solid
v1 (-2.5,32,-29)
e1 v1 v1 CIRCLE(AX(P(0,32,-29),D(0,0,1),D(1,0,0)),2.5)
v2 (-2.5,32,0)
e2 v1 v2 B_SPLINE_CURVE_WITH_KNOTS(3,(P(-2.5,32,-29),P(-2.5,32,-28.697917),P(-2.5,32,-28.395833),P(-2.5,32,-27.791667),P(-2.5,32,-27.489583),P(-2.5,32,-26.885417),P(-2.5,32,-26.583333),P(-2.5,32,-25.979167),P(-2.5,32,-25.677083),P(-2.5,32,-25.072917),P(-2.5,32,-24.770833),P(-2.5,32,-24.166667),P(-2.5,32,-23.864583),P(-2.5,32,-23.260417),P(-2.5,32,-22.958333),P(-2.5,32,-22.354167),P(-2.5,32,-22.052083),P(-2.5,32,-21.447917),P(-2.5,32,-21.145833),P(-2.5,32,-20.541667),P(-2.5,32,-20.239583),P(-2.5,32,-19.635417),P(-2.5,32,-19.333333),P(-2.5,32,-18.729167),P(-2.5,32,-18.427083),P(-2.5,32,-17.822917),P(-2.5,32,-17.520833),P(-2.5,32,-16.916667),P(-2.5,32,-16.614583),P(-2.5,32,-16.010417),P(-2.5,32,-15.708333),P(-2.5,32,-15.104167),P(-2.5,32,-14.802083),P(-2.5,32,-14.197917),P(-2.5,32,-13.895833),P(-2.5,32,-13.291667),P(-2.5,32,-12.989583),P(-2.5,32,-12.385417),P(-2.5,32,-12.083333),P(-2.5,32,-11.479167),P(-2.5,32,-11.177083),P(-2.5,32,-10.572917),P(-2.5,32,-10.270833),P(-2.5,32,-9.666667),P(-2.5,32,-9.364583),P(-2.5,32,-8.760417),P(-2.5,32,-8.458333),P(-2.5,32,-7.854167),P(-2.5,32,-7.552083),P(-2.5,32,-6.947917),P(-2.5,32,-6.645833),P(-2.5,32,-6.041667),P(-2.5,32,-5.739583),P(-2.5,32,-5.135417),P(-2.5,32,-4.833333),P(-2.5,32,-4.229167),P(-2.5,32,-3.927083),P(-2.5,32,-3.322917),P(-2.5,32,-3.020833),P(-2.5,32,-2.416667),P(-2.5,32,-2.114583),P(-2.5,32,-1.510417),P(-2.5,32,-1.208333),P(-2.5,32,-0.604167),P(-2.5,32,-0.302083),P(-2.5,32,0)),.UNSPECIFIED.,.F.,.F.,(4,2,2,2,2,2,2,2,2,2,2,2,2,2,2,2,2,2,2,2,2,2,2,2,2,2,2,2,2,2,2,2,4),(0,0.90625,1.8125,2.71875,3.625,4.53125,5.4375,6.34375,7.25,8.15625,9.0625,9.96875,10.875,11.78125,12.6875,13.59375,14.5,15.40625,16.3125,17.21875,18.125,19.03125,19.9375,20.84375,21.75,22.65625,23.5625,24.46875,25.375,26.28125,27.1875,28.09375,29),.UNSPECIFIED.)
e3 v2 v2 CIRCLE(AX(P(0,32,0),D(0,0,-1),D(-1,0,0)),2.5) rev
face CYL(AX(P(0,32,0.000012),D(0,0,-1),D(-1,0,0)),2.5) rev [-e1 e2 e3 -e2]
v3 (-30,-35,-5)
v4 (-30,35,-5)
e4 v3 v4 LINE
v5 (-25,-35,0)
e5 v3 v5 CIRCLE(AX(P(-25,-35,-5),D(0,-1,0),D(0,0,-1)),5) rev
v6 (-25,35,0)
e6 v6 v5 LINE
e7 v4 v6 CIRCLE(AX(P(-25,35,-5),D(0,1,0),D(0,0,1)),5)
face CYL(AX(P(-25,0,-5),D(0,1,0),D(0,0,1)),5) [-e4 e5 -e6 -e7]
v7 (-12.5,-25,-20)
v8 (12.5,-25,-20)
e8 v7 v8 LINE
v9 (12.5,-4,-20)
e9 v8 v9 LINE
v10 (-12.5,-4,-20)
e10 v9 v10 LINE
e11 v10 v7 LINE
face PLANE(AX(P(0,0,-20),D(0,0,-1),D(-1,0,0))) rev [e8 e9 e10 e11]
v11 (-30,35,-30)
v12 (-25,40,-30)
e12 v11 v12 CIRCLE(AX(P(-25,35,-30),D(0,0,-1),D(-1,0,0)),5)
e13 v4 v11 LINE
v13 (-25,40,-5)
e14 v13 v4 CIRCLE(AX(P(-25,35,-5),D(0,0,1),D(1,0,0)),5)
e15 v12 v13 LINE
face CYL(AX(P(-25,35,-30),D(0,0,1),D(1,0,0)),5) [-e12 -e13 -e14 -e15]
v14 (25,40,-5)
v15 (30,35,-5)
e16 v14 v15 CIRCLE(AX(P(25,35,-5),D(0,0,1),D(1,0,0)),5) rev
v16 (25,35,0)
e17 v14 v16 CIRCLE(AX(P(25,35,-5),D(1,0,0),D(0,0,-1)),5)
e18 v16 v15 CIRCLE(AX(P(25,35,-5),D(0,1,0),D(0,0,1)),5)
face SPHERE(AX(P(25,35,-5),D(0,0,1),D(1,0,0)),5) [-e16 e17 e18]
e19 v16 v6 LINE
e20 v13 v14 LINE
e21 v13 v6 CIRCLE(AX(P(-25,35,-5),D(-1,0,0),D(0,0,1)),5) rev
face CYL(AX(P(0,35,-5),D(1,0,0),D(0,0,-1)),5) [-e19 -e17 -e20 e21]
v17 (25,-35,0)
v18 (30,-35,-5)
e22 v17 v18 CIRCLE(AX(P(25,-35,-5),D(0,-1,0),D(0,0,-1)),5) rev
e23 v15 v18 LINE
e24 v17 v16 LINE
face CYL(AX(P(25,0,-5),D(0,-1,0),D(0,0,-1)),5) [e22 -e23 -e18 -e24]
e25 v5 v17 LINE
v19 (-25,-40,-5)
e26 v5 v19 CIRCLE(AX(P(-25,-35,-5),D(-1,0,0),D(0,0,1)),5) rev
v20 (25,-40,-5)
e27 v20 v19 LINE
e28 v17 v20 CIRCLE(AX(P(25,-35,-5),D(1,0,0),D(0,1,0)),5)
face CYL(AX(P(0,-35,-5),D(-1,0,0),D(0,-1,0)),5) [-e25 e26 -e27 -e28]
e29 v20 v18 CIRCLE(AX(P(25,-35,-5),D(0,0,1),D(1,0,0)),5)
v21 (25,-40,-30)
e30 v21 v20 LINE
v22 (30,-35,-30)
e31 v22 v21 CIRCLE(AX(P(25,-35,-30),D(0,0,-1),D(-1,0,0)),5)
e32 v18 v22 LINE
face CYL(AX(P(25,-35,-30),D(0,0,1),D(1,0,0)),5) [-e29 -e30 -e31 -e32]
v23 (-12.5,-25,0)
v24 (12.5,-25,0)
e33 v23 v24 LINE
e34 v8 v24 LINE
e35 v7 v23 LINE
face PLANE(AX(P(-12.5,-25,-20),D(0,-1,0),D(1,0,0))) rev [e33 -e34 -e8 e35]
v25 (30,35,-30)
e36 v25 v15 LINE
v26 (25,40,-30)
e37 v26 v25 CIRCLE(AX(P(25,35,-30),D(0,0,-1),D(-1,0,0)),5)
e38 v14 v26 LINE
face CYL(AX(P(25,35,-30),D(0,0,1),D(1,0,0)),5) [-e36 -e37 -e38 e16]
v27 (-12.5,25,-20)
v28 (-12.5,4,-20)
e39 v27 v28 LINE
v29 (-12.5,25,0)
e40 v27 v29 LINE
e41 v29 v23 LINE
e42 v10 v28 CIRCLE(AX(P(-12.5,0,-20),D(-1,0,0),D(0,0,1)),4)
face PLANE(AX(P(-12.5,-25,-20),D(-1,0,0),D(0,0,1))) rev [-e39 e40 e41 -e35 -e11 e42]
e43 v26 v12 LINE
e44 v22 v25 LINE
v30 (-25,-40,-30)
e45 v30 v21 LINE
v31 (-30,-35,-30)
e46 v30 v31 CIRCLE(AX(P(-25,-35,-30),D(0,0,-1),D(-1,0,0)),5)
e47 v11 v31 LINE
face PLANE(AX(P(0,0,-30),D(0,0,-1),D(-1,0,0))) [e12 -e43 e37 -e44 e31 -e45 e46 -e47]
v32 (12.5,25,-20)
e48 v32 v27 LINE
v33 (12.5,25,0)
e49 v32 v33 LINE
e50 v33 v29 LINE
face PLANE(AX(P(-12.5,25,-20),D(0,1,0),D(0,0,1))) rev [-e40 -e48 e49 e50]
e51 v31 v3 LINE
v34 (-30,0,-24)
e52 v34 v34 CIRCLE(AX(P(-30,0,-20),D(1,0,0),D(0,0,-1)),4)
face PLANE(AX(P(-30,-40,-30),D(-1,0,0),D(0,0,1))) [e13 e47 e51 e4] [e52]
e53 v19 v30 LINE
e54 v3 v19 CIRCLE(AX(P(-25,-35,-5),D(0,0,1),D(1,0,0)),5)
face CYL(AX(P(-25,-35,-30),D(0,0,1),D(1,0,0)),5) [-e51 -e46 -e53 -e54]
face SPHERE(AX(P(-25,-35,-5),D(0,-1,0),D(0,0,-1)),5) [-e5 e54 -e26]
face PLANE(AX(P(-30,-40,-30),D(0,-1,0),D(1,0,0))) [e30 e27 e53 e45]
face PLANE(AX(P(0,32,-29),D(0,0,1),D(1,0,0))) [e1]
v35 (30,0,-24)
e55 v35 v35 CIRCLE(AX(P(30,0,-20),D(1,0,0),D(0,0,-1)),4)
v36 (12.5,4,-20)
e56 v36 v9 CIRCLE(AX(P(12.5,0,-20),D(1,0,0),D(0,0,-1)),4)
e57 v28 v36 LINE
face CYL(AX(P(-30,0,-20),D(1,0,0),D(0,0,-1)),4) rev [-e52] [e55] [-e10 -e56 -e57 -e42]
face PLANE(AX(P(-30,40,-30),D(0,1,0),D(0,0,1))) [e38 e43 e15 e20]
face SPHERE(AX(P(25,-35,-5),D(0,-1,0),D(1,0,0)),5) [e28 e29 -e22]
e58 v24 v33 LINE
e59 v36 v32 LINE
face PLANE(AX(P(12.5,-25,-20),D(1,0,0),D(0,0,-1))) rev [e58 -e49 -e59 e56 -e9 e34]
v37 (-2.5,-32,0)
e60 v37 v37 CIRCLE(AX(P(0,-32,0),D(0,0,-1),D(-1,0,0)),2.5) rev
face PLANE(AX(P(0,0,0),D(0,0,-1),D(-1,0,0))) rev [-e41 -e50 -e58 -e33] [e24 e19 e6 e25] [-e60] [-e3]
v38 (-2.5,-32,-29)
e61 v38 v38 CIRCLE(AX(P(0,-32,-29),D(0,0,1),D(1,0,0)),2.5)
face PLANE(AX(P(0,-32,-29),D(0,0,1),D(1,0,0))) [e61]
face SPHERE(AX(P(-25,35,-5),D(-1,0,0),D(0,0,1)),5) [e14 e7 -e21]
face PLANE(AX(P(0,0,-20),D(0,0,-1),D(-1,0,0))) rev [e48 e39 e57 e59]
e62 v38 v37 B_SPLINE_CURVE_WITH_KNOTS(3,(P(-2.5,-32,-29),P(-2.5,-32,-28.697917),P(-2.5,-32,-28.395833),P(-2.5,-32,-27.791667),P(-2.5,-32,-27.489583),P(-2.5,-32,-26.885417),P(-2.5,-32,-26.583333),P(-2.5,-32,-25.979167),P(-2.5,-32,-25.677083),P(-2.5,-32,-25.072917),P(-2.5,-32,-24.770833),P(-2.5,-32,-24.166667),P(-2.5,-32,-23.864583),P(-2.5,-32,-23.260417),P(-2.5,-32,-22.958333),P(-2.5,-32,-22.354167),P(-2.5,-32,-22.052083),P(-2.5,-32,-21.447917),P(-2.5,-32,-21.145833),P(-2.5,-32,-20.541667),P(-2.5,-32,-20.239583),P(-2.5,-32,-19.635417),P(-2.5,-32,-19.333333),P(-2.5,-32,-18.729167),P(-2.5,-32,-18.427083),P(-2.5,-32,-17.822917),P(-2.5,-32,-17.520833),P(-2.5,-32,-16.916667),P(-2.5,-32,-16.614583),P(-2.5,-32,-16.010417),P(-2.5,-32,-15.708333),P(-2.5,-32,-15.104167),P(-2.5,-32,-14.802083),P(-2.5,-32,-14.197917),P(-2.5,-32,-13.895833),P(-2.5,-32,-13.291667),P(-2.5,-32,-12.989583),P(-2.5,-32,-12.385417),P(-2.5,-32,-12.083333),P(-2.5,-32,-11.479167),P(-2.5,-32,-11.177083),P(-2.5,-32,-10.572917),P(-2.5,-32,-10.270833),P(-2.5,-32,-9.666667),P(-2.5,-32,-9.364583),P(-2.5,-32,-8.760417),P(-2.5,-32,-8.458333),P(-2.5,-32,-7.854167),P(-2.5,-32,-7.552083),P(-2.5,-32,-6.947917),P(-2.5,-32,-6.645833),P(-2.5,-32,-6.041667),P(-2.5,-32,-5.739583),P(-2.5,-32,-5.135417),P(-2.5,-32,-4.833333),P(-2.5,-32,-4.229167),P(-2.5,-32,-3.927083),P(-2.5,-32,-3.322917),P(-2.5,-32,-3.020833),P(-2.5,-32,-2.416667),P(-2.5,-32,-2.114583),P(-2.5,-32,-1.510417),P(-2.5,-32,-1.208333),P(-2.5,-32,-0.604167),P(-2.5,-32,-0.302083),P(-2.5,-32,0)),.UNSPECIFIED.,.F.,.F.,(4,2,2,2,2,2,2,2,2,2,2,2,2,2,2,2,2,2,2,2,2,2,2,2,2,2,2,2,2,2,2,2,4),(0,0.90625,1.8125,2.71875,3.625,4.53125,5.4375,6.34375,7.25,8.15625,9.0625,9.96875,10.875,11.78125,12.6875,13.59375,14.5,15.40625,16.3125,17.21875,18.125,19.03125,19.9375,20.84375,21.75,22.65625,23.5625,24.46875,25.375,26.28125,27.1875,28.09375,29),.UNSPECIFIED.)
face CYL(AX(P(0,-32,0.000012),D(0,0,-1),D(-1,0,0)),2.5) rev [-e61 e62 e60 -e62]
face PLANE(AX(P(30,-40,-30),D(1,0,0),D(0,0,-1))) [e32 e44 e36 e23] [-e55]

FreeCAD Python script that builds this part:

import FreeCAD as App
import Part
import Sketcher


def edges_at(feature, points):
    """Names of the edges that pass closest to the given points."""
    edges = feature.Shape.Edges
    near = lambda p: min(range(len(edges)), key=lambda i: edges[i].distToShape(Part.Vertex(*p))[0])
    return sorted({f"Edge{near(p) + 1}" for p in points})

doc = App.newDocument("Part")
body = doc.addObject("PartDesign::Body", "Body")

sketch1 = body.newObject("Sketcher::SketchObject", "Sketch")
sketch1.AttachmentSupport = (doc.getObject("XY_Plane"), [""])
sketch1.MapMode = "FlatFace"
sketch1.addGeometry(Part.LineSegment(App.Vector(-30, 40, 0), App.Vector(-30, -40, 0)), False)
sketch1.addGeometry(Part.LineSegment(App.Vector(-30, -40, 0), App.Vector(30, -40, 0)), False)
sketch1.addGeometry(Part.LineSegment(App.Vector(30, -40, 0), App.Vector(30, 40, 0)), False)
sketch1.addGeometry(Part.LineSegment(App.Vector(30, 40, 0), App.Vector(-30, 40, 0)), False)
sketch1.addConstraint(Sketcher.Constraint("Coincident", 0, 2, 1, 1))
sketch1.addConstraint(Sketcher.Constraint("Coincident", 1, 2, 2, 1))
sketch1.addConstraint(Sketcher.Constraint("Coincident", 2, 2, 3, 1))
sketch1.addConstraint(Sketcher.Constraint("Coincident", 3, 2, 0, 1))
sketch1.addConstraint(Sketcher.Constraint("Vertical", 0))
sketch1.addConstraint(Sketcher.Constraint("Horizontal", 1))
sketch1.addConstraint(Sketcher.Constraint("Vertical", 2))
sketch1.addConstraint(Sketcher.Constraint("Horizontal", 3))
sketch1.addConstraint(Sketcher.Constraint("Symmetric", 0, 2, 2, 2, -1, 1))
sketch1.addConstraint(Sketcher.Constraint("DistanceX", 1, 1, 1, 2, 60.0))
sketch1.addConstraint(Sketcher.Constraint("DistanceY", 0, 2, 0, 1, 80.0))
pad1 = body.newObject("PartDesign::Pad", "Pad")
pad1.Profile = sketch1
pad1.Length = 30
pad1.Reversed = True

sketch2 = body.newObject("Sketcher::SketchObject", "Sketch001")
sketch2.AttachmentSupport = (doc.getObject("XY_Plane"), [""])
sketch2.MapMode = "FlatFace"
sketch2.addGeometry(Part.LineSegment(App.Vector(-12, 25, 0), App.Vector(-12, -25, 0)), False)
sketch2.addGeometry(Part.LineSegment(App.Vector(-12, -25, 0), App.Vector(12, -25, 0)), False)
sketch2.addGeometry(Part.LineSegment(App.Vector(12, -25, 0), App.Vector(12, 25, 0)), False)
sketch2.addGeometry(Part.LineSegment(App.Vector(12, 25, 0), App.Vector(-12, 25, 0)), False)
sketch2.addConstraint(Sketcher.Constraint("Coincident", 0, 2, 1, 1))
sketch2.addConstraint(Sketcher.Constraint("Coincident", 1, 2, 2, 1))
sketch2.addConstraint(Sketcher.Constraint("Coincident", 2, 2, 3, 1))
sketch2.addConstraint(Sketcher.Constraint("Coincident", 3, 2, 0, 1))
sketch2.addConstraint(Sketcher.Constraint("Vertical", 0))
sketch2.addConstraint(Sketcher.Constraint("Horizontal", 1))
sketch2.addConstraint(Sketcher.Constraint("Vertical", 2))
sketch2.addConstraint(Sketcher.Constraint("Horizontal", 3))
sketch2.addConstraint(Sketcher.Constraint("Symmetric", 0, 2, 2, 2, -1, 1))
sketch2.addConstraint(Sketcher.Constraint("DistanceX", 1, 1, 1, 2, 25.0))
sketch2.addConstraint(Sketcher.Constraint("DistanceY", 0, 2, 0, 1, 50.0))
pocket1 = body.newObject("PartDesign::Pocket", "Pocket")
pocket1.Profile = sketch2
pocket1.Length = 20

sketch3 = body.newObject("Sketcher::SketchObject", "Sketch002")
sketch3.AttachmentSupport = (doc.getObject("YZ_Plane"), [""])
sketch3.MapMode = "FlatFace"
sketch3.addGeometry(Part.Circle(App.Vector(0, -20, 0), App.Vector(0, 0, 1), 4), False)
sketch3.addConstraint(Sketcher.Constraint("PointOnObject", 0, 3, -2))
sketch3.addConstraint(Sketcher.Constraint("Diameter", 0, 8.0))
sketch3.addConstraint(Sketcher.Constraint("DistanceY", 0, 3, -1, 1, 20.0))
pocket2 = body.newObject("PartDesign::Pocket", "Pocket001")
pocket2.Profile = sketch3
pocket2.Type = "ThroughAll"
pocket2.Midplane = True

sketch4 = body.newObject("Sketcher::SketchObject", "Sketch003")
sketch4.AttachmentSupport = (doc.getObject("XY_Plane"), [""])
sketch4.MapMode = "FlatFace"
sketch4.addGeometry(Part.Circle(App.Vector(0, 32, 0), App.Vector(0, 0, 1), 2.5), False)
sketch4.addGeometry(Part.Circle(App.Vector(0, -32, 0), App.Vector(0, 0, 1), 2.5), False)
sketch4.addConstraint(Sketcher.Constraint("Equal", 0, 1))
sketch4.addConstraint(Sketcher.Constraint("Symmetric", 0, 3, 1, 3, -1, 1))
sketch4.addConstraint(Sketcher.Constraint("PointOnObject", 0, 3, -2))
sketch4.addConstraint(Sketcher.Constraint("Diameter", 0, 5.0))
sketch4.addConstraint(Sketcher.Constraint("DistanceY", -1, 1, 0, 3, 32.0))
pocket3 = body.newObject("PartDesign::Pocket", "Pocket002")
pocket3.Profile = sketch4
pocket3.Type = "TwoLengths"
pocket3.Length = 59.309519
pocket3.Length2 = 29
pocket3.Reversed = True
doc.recompute()

fillet = body.newObject("PartDesign::Fillet", "Fillet")
fillet.Base = (pocket3, edges_at(pocket3, [
    (0, -40, 0),
    (-30, 0, 0),
    (0, 40, 0),
    (30, 0, 0),
    (30, -40, -15),
    (-30, -40, -15),
    (-30, 40, -15),
    (30, 40, -15),
]))
fillet.Radius = 5

doc.recompute()
